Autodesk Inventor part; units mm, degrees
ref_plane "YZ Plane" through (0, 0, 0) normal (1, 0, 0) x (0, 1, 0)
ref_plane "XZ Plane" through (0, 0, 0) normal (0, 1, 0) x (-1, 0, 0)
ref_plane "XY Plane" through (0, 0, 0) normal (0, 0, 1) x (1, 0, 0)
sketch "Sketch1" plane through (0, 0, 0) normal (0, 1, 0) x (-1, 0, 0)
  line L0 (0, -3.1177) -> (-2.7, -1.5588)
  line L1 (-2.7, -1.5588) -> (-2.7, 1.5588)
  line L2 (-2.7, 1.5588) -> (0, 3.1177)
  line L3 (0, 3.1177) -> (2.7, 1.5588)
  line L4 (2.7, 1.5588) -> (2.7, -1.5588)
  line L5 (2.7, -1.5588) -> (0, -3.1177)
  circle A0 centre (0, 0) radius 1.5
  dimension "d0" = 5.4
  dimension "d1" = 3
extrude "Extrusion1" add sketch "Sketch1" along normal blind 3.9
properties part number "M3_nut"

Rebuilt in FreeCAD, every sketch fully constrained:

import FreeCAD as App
import Part
import Sketcher

V = App.Vector
Q = App.Units.Quantity


def add_polygon(sketch, points):
    """Adds a closed chain of lines whose ends are joined by coincident constraints."""
    first, n = sketch.GeometryCount, len(points)
    for a, b in zip(points, points[1:] + points[:1]):
        sketch.addGeometry(Part.LineSegment(App.Vector(*a, 0), App.Vector(*b, 0)), False)
    for i in range(n):
        sketch.addConstraint(Sketcher.Constraint("Coincident", first + i, 2, first + (i + 1) % n, 1))

doc = App.newDocument("Part")
params = doc.addObject("Spreadsheet::Sheet", "Params")
for row, (alias, value) in enumerate([
    ("sketch1_diameter", "3 mm"),
    ("pad1_length", "3.9 mm"),
], start=1):
    params.set(f"A{row}", alias)
    params.set(f"B{row}", "=" + value)
    params.setAlias(f"B{row}", alias)

body = doc.addObject("PartDesign::Body", "Body")

sketch1 = doc.addObject("Sketcher::SketchObject", "Sketch")
body.addObject(sketch1)
sketch1.AttachmentSupport = (doc.XZ_Plane, [""])
sketch1.MapMode = "FlatFace"
add_polygon(sketch1, [(2.7, -1.5588), (0, -3.1177), (-2.7, -1.5588), (-2.7, 1.5588), (0, 3.1177), (2.7, 1.5588)])
sketch1.addGeometry(Part.Circle(V(0, 0, 0), V(0, 0, 1), 1.5), False)
sketch1.addConstraint([
    Sketcher.Constraint("Vertical", 2),
    Sketcher.Constraint("Vertical", 5),
    Sketcher.Constraint("Coincident", 6, 3, -1, 1),
    Sketcher.Constraint("Symmetric", 0, 2, 3, 2, -1, 1),
    Sketcher.Constraint("Symmetric", 1, 2, 4, 2, -1, 1),
    Sketcher.Constraint("PointOnObject", 0, 2, -2),
    Sketcher.Constraint("Parallel", 0, 3),
    Sketcher.Constraint("Horizontal", 2, 2, 4, 2),
    Sketcher.Constraint("Diameter", 6, 3.0),
    Sketcher.Constraint("DistanceX", 2, 2, 4, 2, 5.4),
    Sketcher.Constraint("Angle", 0, Q("-149.9991 deg")),
    Sketcher.Constraint("DistanceY", 2, 1, 2, 2, 3.1176),
])
sketch1.setExpression("Constraints[14]", "Params.sketch1_diameter")
pad1 = doc.addObject("PartDesign::Pad", "Pad")
body.addObject(pad1)
pad1.Profile = sketch1
pad1.setExpression("Length", "Params.pad1_length")
pad1.Reversed = True

doc.recompute()
